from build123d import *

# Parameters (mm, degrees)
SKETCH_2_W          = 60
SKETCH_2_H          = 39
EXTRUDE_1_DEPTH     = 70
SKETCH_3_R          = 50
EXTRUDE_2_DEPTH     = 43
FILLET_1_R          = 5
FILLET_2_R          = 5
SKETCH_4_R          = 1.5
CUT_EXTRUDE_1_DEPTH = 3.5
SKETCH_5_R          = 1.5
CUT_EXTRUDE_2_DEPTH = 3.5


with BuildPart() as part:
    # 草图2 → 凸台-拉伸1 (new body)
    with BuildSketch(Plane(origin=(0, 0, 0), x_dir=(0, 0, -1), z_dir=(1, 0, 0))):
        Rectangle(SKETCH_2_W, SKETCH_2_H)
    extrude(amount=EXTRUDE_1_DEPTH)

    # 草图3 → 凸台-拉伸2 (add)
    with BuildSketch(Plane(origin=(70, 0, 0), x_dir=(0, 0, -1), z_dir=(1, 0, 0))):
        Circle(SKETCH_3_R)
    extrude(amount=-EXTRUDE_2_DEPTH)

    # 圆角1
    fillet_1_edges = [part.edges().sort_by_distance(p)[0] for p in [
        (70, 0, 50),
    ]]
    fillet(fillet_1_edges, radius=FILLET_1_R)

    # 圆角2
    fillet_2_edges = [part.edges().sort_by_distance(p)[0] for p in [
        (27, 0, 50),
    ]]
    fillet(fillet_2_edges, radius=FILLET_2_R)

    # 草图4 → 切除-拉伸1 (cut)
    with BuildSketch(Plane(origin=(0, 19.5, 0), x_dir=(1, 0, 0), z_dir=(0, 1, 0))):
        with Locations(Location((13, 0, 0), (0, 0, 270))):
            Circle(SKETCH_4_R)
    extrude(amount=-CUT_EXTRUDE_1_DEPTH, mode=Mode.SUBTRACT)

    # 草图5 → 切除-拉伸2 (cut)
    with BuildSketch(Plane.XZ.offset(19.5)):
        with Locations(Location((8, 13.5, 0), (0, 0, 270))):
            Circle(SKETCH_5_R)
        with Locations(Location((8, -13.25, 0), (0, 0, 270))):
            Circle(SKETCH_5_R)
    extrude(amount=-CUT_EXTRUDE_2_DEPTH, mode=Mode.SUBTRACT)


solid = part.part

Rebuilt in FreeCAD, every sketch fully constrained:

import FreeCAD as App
import Part
import Sketcher


def edges_at(feature, points):
    """Names of the edges that pass closest to the given points."""
    edges = feature.Shape.Edges
    near = lambda p: min(range(len(edges)), key=lambda i: edges[i].distToShape(Part.Vertex(*p))[0])
    return sorted({f"Edge{near(p) + 1}" for p in points})

doc = App.newDocument("Part")
body = doc.addObject("PartDesign::Body", "Body")

sketch1 = doc.addObject("Sketcher::SketchObject", "Sketch")
body.addObject(sketch1)
sketch1.AttachmentSupport = (doc.YZ_Plane, [""])
sketch1.MapMode = "FlatFace"
sketch1.addGeometry(Part.LineSegment(App.Vector(20, 30, 0), App.Vector(-20, 30, 0)), False)
sketch1.addGeometry(Part.LineSegment(App.Vector(-20, 30, 0), App.Vector(-20, -30, 0)), False)
sketch1.addGeometry(Part.LineSegment(App.Vector(-20, -30, 0), App.Vector(20, -30, 0)), False)
sketch1.addGeometry(Part.LineSegment(App.Vector(20, -30, 0), App.Vector(20, 30, 0)), False)
sketch1.addConstraint(Sketcher.Constraint("Coincident", 0, 2, 1, 1))
sketch1.addConstraint(Sketcher.Constraint("Coincident", 1, 2, 2, 1))
sketch1.addConstraint(Sketcher.Constraint("Coincident", 2, 2, 3, 1))
sketch1.addConstraint(Sketcher.Constraint("Coincident", 3, 2, 0, 1))
sketch1.addConstraint(Sketcher.Constraint("Horizontal", 0))
sketch1.addConstraint(Sketcher.Constraint("Vertical", 1))
sketch1.addConstraint(Sketcher.Constraint("Horizontal", 2))
sketch1.addConstraint(Sketcher.Constraint("Vertical", 3))
sketch1.addConstraint(Sketcher.Constraint("Symmetric", 0, 2, 2, 2, -1, 1))
sketch1.addConstraint(Sketcher.Constraint("DistanceX", 0, 2, 0, 1, 39.0))
sketch1.addConstraint(Sketcher.Constraint("DistanceY", 1, 2, 1, 1, 60.0))
pad1 = doc.addObject("PartDesign::Pad", "Pad")
body.addObject(pad1)
pad1.Profile = sketch1
pad1.Length = 70

sketch2 = doc.addObject("Sketcher::SketchObject", "Sketch001")
body.addObject(sketch2)
sketch2.AttachmentSupport = (doc.YZ_Plane, [""])
sketch2.MapMode = "FlatFace"
sketch2.AttachmentOffset = App.Placement(App.Vector(0, 0, 70), App.Rotation())
sketch2.addGeometry(Part.Circle(App.Vector(0, 0, 0), App.Vector(0, 0, 1), 50), False)
sketch2.addConstraint(Sketcher.Constraint("Coincident", 0, 3, -1, 1))
sketch2.addConstraint(Sketcher.Constraint("Diameter", 0, 100.0))
pad2 = doc.addObject("PartDesign::Pad", "Pad001")
body.addObject(pad2)
pad2.Profile = sketch2
pad2.Length = 43
pad2.Reversed = True
doc.recompute()

fillet = doc.addObject("PartDesign::Fillet", "Fillet")
body.addObject(fillet)
fillet.Base = (pad2, edges_at(pad2, [(70, 0, 50)]))
fillet.Radius = 5
doc.recompute()

fillet2 = doc.addObject("PartDesign::Fillet", "Fillet001")
body.addObject(fillet2)
fillet2.Base = (fillet, edges_at(fillet, [(27, 0, 50)]))
fillet2.Radius = 5

sketch3 = doc.addObject("Sketcher::SketchObject", "Sketch002")
body.addObject(sketch3)
sketch3.AttachmentSupport = (doc.XZ_Plane, [""])
sketch3.MapMode = "FlatFace"
sketch3.AttachmentOffset = App.Placement(App.Vector(0, 0, -19.5), App.Rotation())
sketch3.addGeometry(Part.Circle(App.Vector(13, 0, 0), App.Vector(0, 0, 1), 1.5), False)
sketch3.addConstraint(Sketcher.Constraint("PointOnObject", 0, 3, -1))
sketch3.addConstraint(Sketcher.Constraint("Diameter", 0, 3.0))
sketch3.addConstraint(Sketcher.Constraint("DistanceX", -1, 1, 0, 3, 13.0))
pocket1 = doc.addObject("PartDesign::Pocket", "Pocket")
body.addObject(pocket1)
pocket1.Profile = sketch3
pocket1.Length = 3.5
pocket1.Reversed = True

sketch4 = doc.addObject("Sketcher::SketchObject", "Sketch003")
body.addObject(sketch4)
sketch4.AttachmentSupport = (doc.XZ_Plane, [""])
sketch4.MapMode = "FlatFace"
sketch4.AttachmentOffset = App.Placement(App.Vector(0, 0, 19.5), App.Rotation())
sketch4.addGeometry(Part.Circle(App.Vector(8, 13.5, 0), App.Vector(0, 0, 1), 1.5), False)
sketch4.addGeometry(Part.Circle(App.Vector(8, -13.2, 0), App.Vector(0, 0, 1), 1.5), False)
sketch4.addConstraint(Sketcher.Constraint("Equal", 0, 1))
sketch4.addConstraint(Sketcher.Constraint("Vertical", 0, 3, 1, 3))
sketch4.addConstraint(Sketcher.Constraint("Diameter", 0, 3.0))
sketch4.addConstraint(Sketcher.Constraint("DistanceX", -1, 1, 0, 3, 8.0))
sketch4.addConstraint(Sketcher.Constraint("DistanceY", -1, 1, 0, 3, 13.5))
sketch4.addConstraint(Sketcher.Constraint("DistanceY", 1, 3, -1, 1, 13.25))
pocket2 = doc.addObject("PartDesign::Pocket", "Pocket001")
body.addObject(pocket2)
pocket2.Profile = sketch4
pocket2.Length = 3.5

doc.recompute()
